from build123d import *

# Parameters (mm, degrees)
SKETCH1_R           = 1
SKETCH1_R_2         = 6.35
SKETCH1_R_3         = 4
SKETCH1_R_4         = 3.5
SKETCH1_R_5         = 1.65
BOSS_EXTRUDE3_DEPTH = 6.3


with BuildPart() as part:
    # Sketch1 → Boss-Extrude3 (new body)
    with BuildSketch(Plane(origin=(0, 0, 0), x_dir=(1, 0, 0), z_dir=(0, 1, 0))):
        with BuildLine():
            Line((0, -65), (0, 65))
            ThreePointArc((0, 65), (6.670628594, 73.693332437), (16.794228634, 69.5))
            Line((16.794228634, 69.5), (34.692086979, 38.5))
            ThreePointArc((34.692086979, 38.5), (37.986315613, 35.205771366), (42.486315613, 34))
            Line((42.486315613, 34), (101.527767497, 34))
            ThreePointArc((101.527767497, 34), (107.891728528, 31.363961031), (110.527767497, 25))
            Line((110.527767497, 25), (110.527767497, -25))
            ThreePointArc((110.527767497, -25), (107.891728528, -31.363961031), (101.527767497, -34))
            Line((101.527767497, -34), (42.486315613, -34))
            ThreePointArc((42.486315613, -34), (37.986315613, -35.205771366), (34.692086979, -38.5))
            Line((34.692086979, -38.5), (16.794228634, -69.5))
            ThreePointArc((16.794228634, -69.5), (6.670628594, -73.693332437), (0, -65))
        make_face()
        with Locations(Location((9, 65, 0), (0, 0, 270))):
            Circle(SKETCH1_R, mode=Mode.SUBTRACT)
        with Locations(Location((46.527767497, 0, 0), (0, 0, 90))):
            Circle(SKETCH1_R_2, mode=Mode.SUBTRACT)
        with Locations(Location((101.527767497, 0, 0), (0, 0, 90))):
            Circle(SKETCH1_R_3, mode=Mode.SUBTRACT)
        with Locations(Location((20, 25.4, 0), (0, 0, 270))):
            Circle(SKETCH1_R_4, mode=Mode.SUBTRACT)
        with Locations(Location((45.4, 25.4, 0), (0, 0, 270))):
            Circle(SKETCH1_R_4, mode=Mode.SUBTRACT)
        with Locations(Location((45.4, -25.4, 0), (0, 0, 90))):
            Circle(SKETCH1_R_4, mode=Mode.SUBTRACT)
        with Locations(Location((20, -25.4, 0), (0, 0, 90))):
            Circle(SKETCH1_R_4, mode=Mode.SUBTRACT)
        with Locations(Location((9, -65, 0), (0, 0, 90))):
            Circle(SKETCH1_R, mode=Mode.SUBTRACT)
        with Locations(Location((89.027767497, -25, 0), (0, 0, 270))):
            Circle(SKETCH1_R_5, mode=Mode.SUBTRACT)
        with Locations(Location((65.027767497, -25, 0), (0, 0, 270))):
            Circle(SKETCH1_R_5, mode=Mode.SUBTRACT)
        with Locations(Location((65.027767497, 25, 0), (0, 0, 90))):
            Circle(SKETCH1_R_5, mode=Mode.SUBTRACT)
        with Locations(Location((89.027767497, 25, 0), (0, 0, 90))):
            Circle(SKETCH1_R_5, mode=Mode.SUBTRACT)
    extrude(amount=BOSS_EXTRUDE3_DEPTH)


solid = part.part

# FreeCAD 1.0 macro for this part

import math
import FreeCAD as App
import Part
import Sketcher
from FreeCAD import Vector
Q = App.Units.Quantity

doc = App.newDocument("Part")
body = doc.addObject("PartDesign::Body", "Body")

# Sketch on XZ plane
sketch1 = body.newObject("Sketcher::SketchObject", "Sketch")
sketch1.AttachmentSupport = (doc.getObject("XZ_Plane"), [""])
sketch1.MapMode = "FlatFace"
sketch1.addGeometry([
    Part.LineSegment(Vector(0, -65, 0), Vector(0, 65, 0)),  # 0
    Part.ArcOfCircle(Part.Circle(Vector(9, 65, 0), Vector(0, 0, 1), 9), math.radians(30), math.radians(180)),  # 1
    Part.LineSegment(Vector(16.794229, 69.5, 0), Vector(34.692087, 38.5, 0)),  # 2
    Part.ArcOfCircle(Part.Circle(Vector(42.486316, 43, 0), Vector(0, 0, 1), 9), math.radians(-150), math.radians(-90)),  # 3
    Part.LineSegment(Vector(42.486316, 34, 0), Vector(101.527767, 34, 0)),  # 4
    Part.ArcOfCircle(Part.Circle(Vector(101.527767, 25, 0), Vector(0, 0, 1), 9), math.radians(0), math.radians(90)),  # 5
    Part.LineSegment(Vector(110.527767, 25, 0), Vector(110.527767, -25, 0)),  # 6
    Part.ArcOfCircle(Part.Circle(Vector(101.527767, -25, 0), Vector(0, 0, 1), 9), math.radians(-90), math.radians(0)),  # 7
    Part.LineSegment(Vector(101.527767, -34, 0), Vector(42.486316, -34, 0)),  # 8
    Part.ArcOfCircle(Part.Circle(Vector(42.486316, -43, 0), Vector(0, 0, 1), 9), math.radians(90), math.radians(150)),  # 9
    Part.LineSegment(Vector(34.692087, -38.5, 0), Vector(16.794229, -69.5, 0)),  # 10
    Part.ArcOfCircle(Part.Circle(Vector(9, -65, 0), Vector(0, 0, 1), 9), math.radians(180), math.radians(330)),  # 11
    Part.Circle(Vector(89.027767, 25, 0), Vector(0, 0, 1), 1.65),  # 12
    Part.Circle(Vector(65.027767, 25, 0), Vector(0, 0, 1), 1.65),  # 13
    Part.Circle(Vector(9, 65, 0), Vector(0, 0, 1), 1),  # 14
    Part.Circle(Vector(45.4, 25.4, 0), Vector(0, 0, 1), 3.5),  # 15
    Part.Circle(Vector(20, 25.4, 0), Vector(0, 0, 1), 3.5),  # 16
    Part.Circle(Vector(101.527767, 0, 0), Vector(0, 0, 1), 4),  # 17
    Part.Circle(Vector(89.027767, -25, 0), Vector(0, 0, 1), 1.65),  # 18
    Part.Circle(Vector(65.027767, -25, 0), Vector(0, 0, 1), 1.65),  # 19
    Part.Circle(Vector(46.527767, 0, 0), Vector(0, 0, 1), 6.35),  # 20
    Part.Circle(Vector(45.4, -25.4, 0), Vector(0, 0, 1), 3.5),  # 21
    Part.Circle(Vector(20, -25.4, 0), Vector(0, 0, 1), 3.5),  # 22
    Part.Circle(Vector(9, -65, 0), Vector(0, 0, 1), 1),  # 23
], False)
sketch1.addConstraint([
    Sketcher.Constraint("Tangent", 0, 2, 1, 2),
    Sketcher.Constraint("Tangent", 1, 1, 2, 1),
    Sketcher.Constraint("Tangent", 2, 2, 3, 1),
    Sketcher.Constraint("Tangent", 3, 2, 4, 1),
    Sketcher.Constraint("Tangent", 4, 2, 5, 2),
    Sketcher.Constraint("Tangent", 5, 1, 6, 1),
    Sketcher.Constraint("Tangent", 6, 2, 7, 2),
    Sketcher.Constraint("Tangent", 7, 1, 8, 1),
    Sketcher.Constraint("Tangent", 8, 2, 9, 1),
    Sketcher.Constraint("Tangent", 9, 2, 10, 1),
    Sketcher.Constraint("Tangent", 10, 2, 11, 2),
    Sketcher.Constraint("Tangent", 11, 1, 0, 1),
    Sketcher.Constraint("Vertical", 0),
    Sketcher.Constraint("Horizontal", 4),
    Sketcher.Constraint("Vertical", 6),
    Sketcher.Constraint("Horizontal", 8),
    Sketcher.Constraint("Coincident", 14, 3, 1, 3),
    Sketcher.Constraint("Coincident", 23, 3, 11, 3),
    Sketcher.Constraint("Equal", 1, 3),
    Sketcher.Constraint("Equal", 3, 5),
    Sketcher.Constraint("Equal", 5, 7),
    Sketcher.Constraint("Equal", 7, 9),
    Sketcher.Constraint("Equal", 9, 11),
    Sketcher.Constraint("Equal", 12, 13),
    Sketcher.Constraint("Equal", 15, 16),
    Sketcher.Constraint("Equal", 13, 18),
    Sketcher.Constraint("Equal", 18, 19),
    Sketcher.Constraint("Equal", 16, 21),
    Sketcher.Constraint("Equal", 21, 22),
    Sketcher.Constraint("Equal", 14, 23),
    Sketcher.Constraint("Symmetric", 0, 2, 11, 1, -1, 1),
    Sketcher.Constraint("Symmetric", 3, 3, 9, 3, -1),
    Sketcher.Constraint("Symmetric", 12, 3, 18, 3, -1),
    Sketcher.Constraint("Symmetric", 13, 3, 19, 3, -1),
    Sketcher.Constraint("Symmetric", 15, 3, 21, 3, -1),
    Sketcher.Constraint("Symmetric", 16, 3, 22, 3, -1),
    Sketcher.Constraint("PointOnObject", 17, 3, -1),
    Sketcher.Constraint("PointOnObject", 20, 3, -1),
    Sketcher.Constraint("Horizontal", 5, 3, 12, 3),
    Sketcher.Constraint("Horizontal", 12, 3, 13, 3),
    Sketcher.Constraint("Horizontal", 15, 3, 16, 3),
    Sketcher.Constraint("Vertical", 7, 3, 17, 3),
    Sketcher.Constraint("Diameter", 14, 2.0),
    Sketcher.Constraint("Diameter", 15, 7.0),
    Sketcher.Constraint("Diameter", 17, 8.0),
    Sketcher.Constraint("Radius", 1, 9.0),
    Sketcher.Constraint("Diameter", 12, 3.3),
    Sketcher.Constraint("Diameter", 20, 12.7),
    Sketcher.Constraint("DistanceY", 0, 1, 0, 2, 130.0),
    Sketcher.Constraint("DistanceY", 6, 2, 6, 1, 50.0),
    Sketcher.Constraint("Angle", 2, Q("-60 deg")),
    Sketcher.Constraint("DistanceX", -1, 1, 16, 3, 20.0),
    Sketcher.Constraint("DistanceX", 13, 3, 12, 3, 24.0),
    Sketcher.Constraint("DistanceX", -1, 1, 15, 3, 45.4),
    Sketcher.Constraint("DistanceY", -1, 1, 15, 3, 25.4),
    Sketcher.Constraint("DistanceX", 12, 3, 5, 3, 12.5),
    Sketcher.Constraint("DistanceX", 20, 3, 13, 3, 18.5),
    Sketcher.Constraint("DistanceX", 4, 1, 4, 2, 59.041452),
])
pad1 = body.newObject("PartDesign::Pad", "Pad")
pad1.Profile = sketch1
pad1.Length = 6.3
pad1.Reversed = True

doc.recompute()
